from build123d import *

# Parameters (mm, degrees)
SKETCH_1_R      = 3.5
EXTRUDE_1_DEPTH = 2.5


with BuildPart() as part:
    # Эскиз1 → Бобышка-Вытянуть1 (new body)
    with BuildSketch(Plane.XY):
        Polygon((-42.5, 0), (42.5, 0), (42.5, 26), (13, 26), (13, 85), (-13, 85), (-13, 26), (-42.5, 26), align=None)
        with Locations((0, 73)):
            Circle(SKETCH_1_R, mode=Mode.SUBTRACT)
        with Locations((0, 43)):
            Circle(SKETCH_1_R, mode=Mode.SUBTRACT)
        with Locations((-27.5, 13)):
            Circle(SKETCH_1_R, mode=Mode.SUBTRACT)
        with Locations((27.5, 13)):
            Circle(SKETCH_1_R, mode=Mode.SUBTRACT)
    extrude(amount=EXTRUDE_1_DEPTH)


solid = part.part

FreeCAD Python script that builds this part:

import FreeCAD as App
import Part
import Sketcher
from FreeCAD import Vector
Q = App.Units.Quantity


def add_polygon(sketch, points):
    """Adds a closed chain of lines whose ends are joined by coincident constraints."""
    first, n = sketch.GeometryCount, len(points)
    for a, b in zip(points, points[1:] + points[:1]):
        sketch.addGeometry(Part.LineSegment(App.Vector(*a, 0), App.Vector(*b, 0)), False)
    for i in range(n):
        sketch.addConstraint(Sketcher.Constraint("Coincident", first + i, 2, first + (i + 1) % n, 1))

doc = App.newDocument("Part")
body = doc.addObject("PartDesign::Body", "Body")

# Sketch on XY plane
sketch1 = doc.addObject("Sketcher::SketchObject", "Sketch")
body.addObject(sketch1)
sketch1.AttachmentSupport = (doc.XY_Plane, [""])
sketch1.MapMode = "FlatFace"
add_polygon(sketch1, [(-42.5, 0), (42.5, 0), (42.5, 26), (13, 26), (13, 85), (-13, 85), (-13, 26), (-42.5, 26)])  # lines 0-7
sketch1.addGeometry(Part.Circle(Vector(-27.5, 13, 0), Vector(0, 0, 1), 3.5), False)  # 8
sketch1.addGeometry(Part.Circle(Vector(27.5, 13, 0), Vector(0, 0, 1), 3.5), False)  # 9
sketch1.addGeometry(Part.Circle(Vector(0, 43, 0), Vector(0, 0, 1), 3.5), False)  # 10
sketch1.addGeometry(Part.Circle(Vector(0, 73, 0), Vector(0, 0, 1), 3.5), False)  # 11
sketch1.addConstraint([
    Sketcher.Constraint("Horizontal", 0),
    Sketcher.Constraint("Vertical", 1),
    Sketcher.Constraint("Horizontal", 2),
    Sketcher.Constraint("Vertical", 3),
    Sketcher.Constraint("Horizontal", 4),
    Sketcher.Constraint("Vertical", 5),
    Sketcher.Constraint("Horizontal", 6),
    Sketcher.Constraint("Vertical", 7),
    Sketcher.Constraint("Equal", 8, 9),
    Sketcher.Constraint("Equal", 9, 10),
    Sketcher.Constraint("Equal", 10, 11),
    Sketcher.Constraint("Symmetric", 0, 2, 7, 2, -1, 1),
    Sketcher.Constraint("Symmetric", 8, 3, 9, 3, -2),
    Sketcher.Constraint("Symmetric", 2, 2, 5, 2, -2),
    Sketcher.Constraint("PointOnObject", 10, 3, -2),
    Sketcher.Constraint("PointOnObject", 11, 3, -2),
    Sketcher.Constraint("Equal", 4, 1),
    Sketcher.Constraint("Diameter", 8, Q("7 mm")),
    Sketcher.Constraint("DistanceX", 0, 1, 0, 2, Q("85 mm")),
    Sketcher.Constraint("DistanceX", 4, 2, 4, 1, Q("26 mm")),
    Sketcher.Constraint("DistanceY", 3, 1, 3, 2, Q("59 mm")),
    Sketcher.Constraint("DistanceY", -1, 1, 8, 3, Q("13 mm")),
    Sketcher.Constraint("DistanceY", -1, 1, 10, 3, Q("43 mm")),
    Sketcher.Constraint("DistanceY", -1, 1, 11, 3, Q("73 mm")),
    Sketcher.Constraint("DistanceX", 8, 3, 9, 3, Q("55 mm")),
])
pad1 = doc.addObject("PartDesign::Pad", "Pad")
body.addObject(pad1)
pad1.Profile = sketch1
pad1.Length = 2.5

doc.recompute()
